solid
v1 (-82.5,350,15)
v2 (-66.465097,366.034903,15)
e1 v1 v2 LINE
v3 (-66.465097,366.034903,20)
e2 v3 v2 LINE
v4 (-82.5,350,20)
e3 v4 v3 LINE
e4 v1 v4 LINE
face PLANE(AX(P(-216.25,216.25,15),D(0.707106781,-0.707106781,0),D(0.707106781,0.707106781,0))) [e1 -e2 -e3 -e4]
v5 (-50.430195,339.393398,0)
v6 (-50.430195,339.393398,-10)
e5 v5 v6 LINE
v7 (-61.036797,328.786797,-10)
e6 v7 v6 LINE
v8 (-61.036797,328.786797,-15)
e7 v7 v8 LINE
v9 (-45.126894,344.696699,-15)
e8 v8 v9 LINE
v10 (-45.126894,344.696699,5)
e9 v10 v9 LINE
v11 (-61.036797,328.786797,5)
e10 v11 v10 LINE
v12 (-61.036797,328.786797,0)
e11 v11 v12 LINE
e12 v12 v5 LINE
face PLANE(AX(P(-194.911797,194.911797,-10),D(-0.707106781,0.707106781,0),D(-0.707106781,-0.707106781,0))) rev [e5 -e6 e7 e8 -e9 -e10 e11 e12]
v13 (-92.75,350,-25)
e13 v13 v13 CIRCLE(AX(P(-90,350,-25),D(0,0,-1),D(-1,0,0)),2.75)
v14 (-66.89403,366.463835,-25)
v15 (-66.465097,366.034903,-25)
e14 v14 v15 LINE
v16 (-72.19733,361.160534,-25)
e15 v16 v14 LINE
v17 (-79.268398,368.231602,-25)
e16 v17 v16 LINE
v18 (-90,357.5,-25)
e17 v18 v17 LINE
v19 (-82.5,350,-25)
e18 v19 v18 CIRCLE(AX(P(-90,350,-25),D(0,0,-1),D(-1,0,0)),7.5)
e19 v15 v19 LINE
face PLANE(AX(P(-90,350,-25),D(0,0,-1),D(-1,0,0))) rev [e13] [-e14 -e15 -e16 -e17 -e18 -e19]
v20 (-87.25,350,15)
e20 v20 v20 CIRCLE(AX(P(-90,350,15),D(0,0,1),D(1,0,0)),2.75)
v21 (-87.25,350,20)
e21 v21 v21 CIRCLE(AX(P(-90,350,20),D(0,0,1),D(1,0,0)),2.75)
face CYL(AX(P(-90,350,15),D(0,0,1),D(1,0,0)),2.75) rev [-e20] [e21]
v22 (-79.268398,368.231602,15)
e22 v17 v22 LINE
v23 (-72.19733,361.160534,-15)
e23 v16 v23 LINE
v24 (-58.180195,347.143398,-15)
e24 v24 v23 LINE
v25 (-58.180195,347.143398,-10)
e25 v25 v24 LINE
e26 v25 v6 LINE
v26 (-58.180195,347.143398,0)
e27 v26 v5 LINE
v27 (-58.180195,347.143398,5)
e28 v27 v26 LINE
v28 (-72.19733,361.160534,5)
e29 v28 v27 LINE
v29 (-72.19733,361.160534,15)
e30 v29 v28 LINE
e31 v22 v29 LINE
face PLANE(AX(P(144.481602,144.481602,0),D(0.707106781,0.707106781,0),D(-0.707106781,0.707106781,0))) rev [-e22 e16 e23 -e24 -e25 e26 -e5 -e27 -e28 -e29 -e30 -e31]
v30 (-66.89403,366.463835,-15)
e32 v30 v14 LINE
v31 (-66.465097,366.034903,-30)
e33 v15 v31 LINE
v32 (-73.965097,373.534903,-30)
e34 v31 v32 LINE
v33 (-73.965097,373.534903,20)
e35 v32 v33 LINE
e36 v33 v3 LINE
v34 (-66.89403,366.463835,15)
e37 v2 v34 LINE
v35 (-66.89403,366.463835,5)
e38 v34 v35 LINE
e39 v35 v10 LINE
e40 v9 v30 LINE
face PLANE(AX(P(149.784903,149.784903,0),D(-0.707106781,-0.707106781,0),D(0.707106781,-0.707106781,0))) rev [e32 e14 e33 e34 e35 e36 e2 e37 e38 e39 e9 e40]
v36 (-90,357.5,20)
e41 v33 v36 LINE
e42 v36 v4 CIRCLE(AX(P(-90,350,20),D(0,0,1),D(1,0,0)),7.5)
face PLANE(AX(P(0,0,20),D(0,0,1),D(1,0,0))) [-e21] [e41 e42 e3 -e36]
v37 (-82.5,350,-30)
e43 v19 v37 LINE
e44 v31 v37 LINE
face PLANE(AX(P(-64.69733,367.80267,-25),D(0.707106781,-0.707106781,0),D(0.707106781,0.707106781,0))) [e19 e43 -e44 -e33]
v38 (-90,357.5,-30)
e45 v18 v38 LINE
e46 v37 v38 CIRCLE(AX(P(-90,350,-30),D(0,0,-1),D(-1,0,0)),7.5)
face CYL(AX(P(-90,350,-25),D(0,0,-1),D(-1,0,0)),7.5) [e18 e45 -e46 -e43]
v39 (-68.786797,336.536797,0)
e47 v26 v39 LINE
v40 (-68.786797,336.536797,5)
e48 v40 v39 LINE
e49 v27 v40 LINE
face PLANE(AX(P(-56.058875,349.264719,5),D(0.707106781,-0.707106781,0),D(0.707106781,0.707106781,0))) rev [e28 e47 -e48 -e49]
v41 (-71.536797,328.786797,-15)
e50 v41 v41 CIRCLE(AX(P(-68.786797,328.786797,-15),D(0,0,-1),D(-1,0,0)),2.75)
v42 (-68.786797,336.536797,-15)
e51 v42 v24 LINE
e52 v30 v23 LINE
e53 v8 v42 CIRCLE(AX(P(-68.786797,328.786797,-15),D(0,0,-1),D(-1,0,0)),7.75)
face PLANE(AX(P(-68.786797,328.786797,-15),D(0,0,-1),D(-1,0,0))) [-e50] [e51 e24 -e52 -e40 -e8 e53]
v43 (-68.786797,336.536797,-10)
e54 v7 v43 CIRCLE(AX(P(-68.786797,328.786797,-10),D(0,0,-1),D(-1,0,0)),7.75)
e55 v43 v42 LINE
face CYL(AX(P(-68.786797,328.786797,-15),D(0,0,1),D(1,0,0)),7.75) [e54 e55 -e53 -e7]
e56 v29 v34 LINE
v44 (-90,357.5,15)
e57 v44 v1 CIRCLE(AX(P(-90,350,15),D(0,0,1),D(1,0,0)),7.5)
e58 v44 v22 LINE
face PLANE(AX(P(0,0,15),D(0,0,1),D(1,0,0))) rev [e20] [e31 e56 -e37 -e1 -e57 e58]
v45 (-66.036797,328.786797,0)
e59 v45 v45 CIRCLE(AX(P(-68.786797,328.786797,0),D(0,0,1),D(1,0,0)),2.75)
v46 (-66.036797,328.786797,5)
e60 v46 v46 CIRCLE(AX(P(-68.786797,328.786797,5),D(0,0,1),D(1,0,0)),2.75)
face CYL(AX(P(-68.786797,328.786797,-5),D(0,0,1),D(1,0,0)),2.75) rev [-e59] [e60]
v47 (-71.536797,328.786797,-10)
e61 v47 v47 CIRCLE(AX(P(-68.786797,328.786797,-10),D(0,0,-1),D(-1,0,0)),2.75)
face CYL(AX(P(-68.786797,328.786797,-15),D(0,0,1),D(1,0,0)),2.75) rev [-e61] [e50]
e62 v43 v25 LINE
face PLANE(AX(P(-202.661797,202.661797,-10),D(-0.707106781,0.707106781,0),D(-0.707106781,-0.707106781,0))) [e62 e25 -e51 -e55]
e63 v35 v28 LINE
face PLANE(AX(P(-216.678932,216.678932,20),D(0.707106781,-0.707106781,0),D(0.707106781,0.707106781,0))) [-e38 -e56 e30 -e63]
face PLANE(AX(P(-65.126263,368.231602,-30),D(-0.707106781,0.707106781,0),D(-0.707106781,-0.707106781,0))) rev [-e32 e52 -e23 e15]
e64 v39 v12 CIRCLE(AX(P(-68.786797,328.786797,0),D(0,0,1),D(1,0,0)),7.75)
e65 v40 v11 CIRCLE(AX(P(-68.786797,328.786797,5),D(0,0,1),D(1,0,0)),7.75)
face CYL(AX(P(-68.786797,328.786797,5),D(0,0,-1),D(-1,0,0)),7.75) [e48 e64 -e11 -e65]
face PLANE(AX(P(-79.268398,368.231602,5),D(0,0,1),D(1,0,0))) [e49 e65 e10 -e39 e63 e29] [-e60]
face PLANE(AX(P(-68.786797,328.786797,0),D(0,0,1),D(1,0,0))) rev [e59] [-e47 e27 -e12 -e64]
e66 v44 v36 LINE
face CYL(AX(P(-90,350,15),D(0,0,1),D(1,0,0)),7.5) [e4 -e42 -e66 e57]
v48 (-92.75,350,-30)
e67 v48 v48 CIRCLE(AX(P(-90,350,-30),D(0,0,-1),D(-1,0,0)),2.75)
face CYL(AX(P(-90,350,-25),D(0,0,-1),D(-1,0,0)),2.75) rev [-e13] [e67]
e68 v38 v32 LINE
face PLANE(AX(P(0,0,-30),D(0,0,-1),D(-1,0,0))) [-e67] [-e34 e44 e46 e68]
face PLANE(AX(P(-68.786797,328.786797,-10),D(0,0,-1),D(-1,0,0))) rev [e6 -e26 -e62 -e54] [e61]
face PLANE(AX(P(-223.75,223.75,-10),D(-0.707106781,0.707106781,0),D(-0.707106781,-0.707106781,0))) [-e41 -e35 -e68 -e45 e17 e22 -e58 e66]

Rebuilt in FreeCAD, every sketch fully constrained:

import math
import FreeCAD as App
import Part
import Sketcher
from FreeCAD import Vector
Q = App.Units.Quantity


def add_polygon(sketch, points):
    """Adds a closed chain of lines whose ends are joined by coincident constraints."""
    first, n = sketch.GeometryCount, len(points)
    for a, b in zip(points, points[1:] + points[:1]):
        sketch.addGeometry(Part.LineSegment(App.Vector(*a, 0), App.Vector(*b, 0)), False)
    for i in range(n):
        sketch.addConstraint(Sketcher.Constraint("Coincident", first + i, 2, first + (i + 1) % n, 1))

doc = App.newDocument("Part")
body = doc.addObject("PartDesign::Body", "Body")

# Sketch on XY plane
sketch1 = body.newObject("Sketcher::SketchObject", "Sketch")
sketch1.AttachmentSupport = (doc.getObject("XY_Plane"), [""])
sketch1.MapMode = "FlatFace"
sketch1.addGeometry(Part.Circle(Vector(-68.8, 328.8, 0), Vector(0, 0, 1), 7.8), False)
sketch1.addGeometry(Part.Circle(Vector(-68.8, 328.8, 0), Vector(0, 0, 1), 2.8), False)
sketch1.addConstraint(Sketcher.Constraint("Coincident", 1, 3, 0, 3))
sketch1.addConstraint(Sketcher.Constraint("Diameter", 0, Q("15.5 mm")))
sketch1.addConstraint(Sketcher.Constraint("Diameter", 1, Q("5.5 mm")))
sketch1.addConstraint(Sketcher.Constraint("DistanceX", 0, 3, -1, 1, Q("68.786797 mm")))
sketch1.addConstraint(Sketcher.Constraint("DistanceY", -1, 1, 0, 3, Q("328.786797 mm")))
pad1 = body.newObject("PartDesign::Pad", "Pad")
pad1.Profile = sketch1
pad1.Length = 5

# Sketch on XY plane
sketch2 = body.newObject("Sketcher::SketchObject", "Sketch001")
sketch2.AttachmentSupport = (doc.getObject("XY_Plane"), [""])
sketch2.MapMode = "FlatFace"
sketch2.addGeometry(Part.LineSegment(Vector(-61, 329, 0), Vector(-43, 346, 0)), False)
sketch2.addGeometry(Part.LineSegment(Vector(-43, 346, 0), Vector(-72, 375, 0)), False)
sketch2.addGeometry(Part.LineSegment(Vector(-72, 375, 0), Vector(-90, 358, 0)), False)
sketch2.addGeometry(Part.ArcOfCircle(Part.Circle(Vector(-90, 350, 0), Vector(0, 0, 1), 8), math.radians(90), math.radians(360)), False)
sketch2.addGeometry(Part.LineSegment(Vector(-82, 350, 0), Vector(-70, 363, 0)), False)
sketch2.addGeometry(Part.LineSegment(Vector(-70, 363, 0), Vector(-56, 349, 0)), False)
sketch2.addGeometry(Part.LineSegment(Vector(-56, 349, 0), Vector(-69, 337, 0)), False)
sketch2.addGeometry(Part.ArcOfCircle(Part.Circle(Vector(-69, 329, 0), Vector(0, 0, 1), 8), math.radians(90), math.radians(360)), False)
sketch2.addConstraint(Sketcher.Constraint("Coincident", 0, 2, 1, 1))
sketch2.addConstraint(Sketcher.Constraint("Coincident", 1, 2, 2, 1))
sketch2.addConstraint(Sketcher.Constraint("Coincident", 2, 2, 3, 1))
sketch2.addConstraint(Sketcher.Constraint("Coincident", 3, 2, 4, 1))
sketch2.addConstraint(Sketcher.Constraint("Coincident", 4, 2, 5, 1))
sketch2.addConstraint(Sketcher.Constraint("Coincident", 5, 2, 6, 1))
sketch2.addConstraint(Sketcher.Constraint("Coincident", 6, 2, 7, 1))
sketch2.addConstraint(Sketcher.Constraint("Coincident", 7, 2, 0, 1))
sketch2.addConstraint(Sketcher.Constraint("Perpendicular", 0, 1))
sketch2.addConstraint(Sketcher.Constraint("Perpendicular", 1, 2))
sketch2.addConstraint(Sketcher.Constraint("Parallel", 2, 4))
sketch2.addConstraint(Sketcher.Constraint("Perpendicular", 4, 5))
sketch2.addConstraint(Sketcher.Constraint("Perpendicular", 5, 6))
sketch2.addConstraint(Sketcher.Constraint("Vertical", 3, 3, 2, 2))
sketch2.addConstraint(Sketcher.Constraint("Vertical", 7, 3, 6, 2))
sketch2.addConstraint(Sketcher.Constraint("Radius", 3, Q("7.5 mm")))
sketch2.addConstraint(Sketcher.Constraint("Angle", 0, Q("45 deg")))
sketch2.addConstraint(Sketcher.Constraint("Radius", 7, Q("7.75 mm")))
sketch2.addConstraint(Sketcher.Constraint("Distance", 0, Q("25 mm")))
sketch2.addConstraint(Sketcher.Constraint("Distance", 6, Q("18 mm")))
sketch2.addConstraint(Sketcher.Constraint("DistanceX", 3, 3, -1, 1, Q("90 mm")))
sketch2.addConstraint(Sketcher.Constraint("DistanceY", -1, 1, 3, 3, Q("350 mm")))
sketch2.addConstraint(Sketcher.Constraint("DistanceY", -1, 1, 3, 2, Q("350 mm")))
sketch2.addConstraint(Sketcher.Constraint("DistanceY", 7, 2, 6, 2, Q("7.75 mm")))
sketch2.addConstraint(Sketcher.Constraint("Distance", 1, Q("40.783378 mm")))
sketch2.addConstraint(Sketcher.Constraint("DistanceX", 1, 2, -1, 1, Q("72.19733 mm")))
pad2 = body.newObject("PartDesign::Pad", "Pad001")
pad2.Profile = sketch2
pad2.Length = 5
body2 = doc.addObject("PartDesign::Body", "Body001")

# Sketch on XY plane
sketch3 = body2.newObject("Sketcher::SketchObject", "Sketch002")
sketch3.AttachmentSupport = (doc.getObject("XY_Plane001"), [""])
sketch3.MapMode = "FlatFace"
sketch3.AttachmentOffset = App.Placement(Vector(0, 0, -10), App.Rotation())
sketch3.addGeometry(Part.Circle(Vector(-68.8, 328.8, 0), Vector(0, 0, 1), 7.8), False)
sketch3.addGeometry(Part.Circle(Vector(-68.8, 328.8, 0), Vector(0, 0, 1), 2.8), False)
sketch3.addConstraint(Sketcher.Constraint("Coincident", 1, 3, 0, 3))
sketch3.addConstraint(Sketcher.Constraint("Diameter", 0, Q("15.5 mm")))
sketch3.addConstraint(Sketcher.Constraint("Diameter", 1, Q("5.5 mm")))
sketch3.addConstraint(Sketcher.Constraint("DistanceX", 0, 3, -1, 1, Q("68.786797 mm")))
sketch3.addConstraint(Sketcher.Constraint("DistanceY", -1, 1, 0, 3, Q("328.786797 mm")))
pad3 = body2.newObject("PartDesign::Pad", "Pad002")
pad3.Profile = sketch3
pad3.Length = 5
pad3.Reversed = True

# Sketch on XY plane
sketch4 = body2.newObject("Sketcher::SketchObject", "Sketch003")
sketch4.AttachmentSupport = (doc.getObject("XY_Plane001"), [""])
sketch4.MapMode = "FlatFace"
sketch4.AttachmentOffset = App.Placement(Vector(0, 0, -15), App.Rotation())
sketch4.addGeometry(Part.LineSegment(Vector(-90, 357.5, 0), Vector(-72.2, 375.3, 0)), False)
sketch4.addGeometry(Part.LineSegment(Vector(-72.2, 375.3, 0), Vector(-43.4, 346.5, 0)), False)
sketch4.addGeometry(Part.LineSegment(Vector(-43.4, 346.5, 0), Vector(-61, 328.8, 0)), False)
sketch4.addGeometry(Part.ArcOfCircle(Part.Circle(Vector(-68.8, 328.8, 0), Vector(0, 0, 1), 7.7), math.radians(0), math.radians(90)), False)
sketch4.addGeometry(Part.LineSegment(Vector(-68.8, 336.5, 0), Vector(-56.1, 349.3, 0)), False)
sketch4.addGeometry(Part.LineSegment(Vector(-56.1, 349.3, 0), Vector(-69.6, 362.9, 0)), False)
sketch4.addGeometry(Part.LineSegment(Vector(-69.6, 362.9, 0), Vector(-82.5, 350, 0)), False)
sketch4.addGeometry(Part.ArcOfCircle(Part.Circle(Vector(-90, 350, 0), Vector(0, 0, 1), 7.5), math.radians(90), math.radians(360)), False)
sketch4.addGeometry(Part.Circle(Vector(-90, 350, 0), Vector(0, 0, 1), 2.8), False)
sketch4.addConstraint(Sketcher.Constraint("Coincident", 0, 2, 1, 1))
sketch4.addConstraint(Sketcher.Constraint("Coincident", 1, 2, 2, 1))
sketch4.addConstraint(Sketcher.Constraint("Coincident", 2, 2, 3, 1))
sketch4.addConstraint(Sketcher.Constraint("Coincident", 3, 2, 4, 1))
sketch4.addConstraint(Sketcher.Constraint("Coincident", 4, 2, 5, 1))
sketch4.addConstraint(Sketcher.Constraint("Coincident", 5, 2, 6, 1))
sketch4.addConstraint(Sketcher.Constraint("Coincident", 6, 2, 7, 2))
sketch4.addConstraint(Sketcher.Constraint("Coincident", 7, 1, 0, 1))
sketch4.addConstraint(Sketcher.Constraint("Coincident", 8, 3, 7, 3))
sketch4.addConstraint(Sketcher.Constraint("Perpendicular", 0, 1))
sketch4.addConstraint(Sketcher.Constraint("Perpendicular", 1, 2))
sketch4.addConstraint(Sketcher.Constraint("Parallel", 2, 4))
sketch4.addConstraint(Sketcher.Constraint("Perpendicular", 4, 5))
sketch4.addConstraint(Sketcher.Constraint("Perpendicular", 5, 6))
sketch4.addConstraint(Sketcher.Constraint("Horizontal", 3, 3, 2, 2))
sketch4.addConstraint(Sketcher.Constraint("Horizontal", 8, 3, 6, 2))
sketch4.addConstraint(Sketcher.Constraint("Vertical", 8, 3, 7, 1))
sketch4.addConstraint(Sketcher.Constraint("Diameter", 8, Q("5.5 mm")))
sketch4.addConstraint(Sketcher.Constraint("Radius", 7, Q("7.5 mm")))
sketch4.addConstraint(Sketcher.Constraint("Angle", 0, Q("45 deg")))
sketch4.addConstraint(Sketcher.Constraint("Radius", 3, Q("7.75 mm")))
sketch4.addConstraint(Sketcher.Constraint("Distance", 2, Q("25 mm")))
sketch4.addConstraint(Sketcher.Constraint("Distance", 4, Q("18 mm")))
sketch4.addConstraint(Sketcher.Constraint("DistanceX", 7, 3, -1, 1, Q("90 mm")))
sketch4.addConstraint(Sketcher.Constraint("DistanceY", -1, 1, 7, 3, Q("350 mm")))
sketch4.addConstraint(Sketcher.Constraint("DistanceX", 3, 2, 2, 2, Q("7.75 mm")))
sketch4.addConstraint(Sketcher.Constraint("Distance", 1, Q("40.783378 mm")))
sketch4.addConstraint(Sketcher.Constraint("DistanceX", 0, 2, -1, 1, Q("72.19733 mm")))
pad4 = body2.newObject("PartDesign::Pad", "Pad003")
pad4.Profile = sketch4
pad4.Length = 5
body.AllowCompound = True
doc.recompute()

boolean = body.newObject("PartDesign::Boolean", "Boolean")
boolean.Type = "Fuse"
boolean.addObjects([body2])

# Sketch on an angled plane
sketch5 = body.newObject("Sketcher::SketchObject", "Sketch004")
sketch5.Placement = App.Placement(Vector(151.55267, 151.55267, 0), App.Rotation(Vector(0, 0, -1), Vector(-0.707106781, 0.707106781, 0), Vector(0.707106781, 0.707106781, 0), "ZXY"))
add_polygon(sketch5, [(-5, 316), (-5, 276), (15, 276), (15, 316)])  # lines 0-3
sketch5.addConstraint(Sketcher.Constraint("Vertical", 0))
sketch5.addConstraint(Sketcher.Constraint("Horizontal", 1))
sketch5.addConstraint(Sketcher.Constraint("Vertical", 2))
sketch5.addConstraint(Sketcher.Constraint("Horizontal", 3))
sketch5.addConstraint(Sketcher.Constraint("DistanceX", 1, 1, 1, 2, Q("20 mm")))
sketch5.addConstraint(Sketcher.Constraint("DistanceX", 0, 2, -1, 1, Q("5 mm")))
sketch5.addConstraint(Sketcher.Constraint("DistanceY", 0, 2, 0, 1, Q("40.783378 mm")))
sketch5.addConstraint(Sketcher.Constraint("DistanceY", -1, 1, 0, 2, Q("275.646906 mm")))
pad5 = body.newObject("PartDesign::Pad", "Pad004")
pad5.Profile = sketch5
pad5.Length = 10
pad5.Reversed = True

# Sketch on XY plane
sketch6 = body.newObject("Sketcher::SketchObject", "Sketch005")
sketch6.AttachmentSupport = (doc.getObject("XY_Plane"), [""])
sketch6.MapMode = "FlatFace"
sketch6.AttachmentOffset = App.Placement(Vector(0, 0, 5), App.Rotation())
sketch6.addGeometry(Part.Circle(Vector(-68.8, 328.8, 0), Vector(0, 0, 1), 2.8), False)
sketch6.addGeometry(Part.Circle(Vector(-90, 350, 0), Vector(0, 0, 1), 2.8), False)
sketch6.addConstraint(Sketcher.Constraint("Equal", 0, 1))
sketch6.addConstraint(Sketcher.Constraint("Diameter", 0, Q("5.5 mm")))
sketch6.addConstraint(Sketcher.Constraint("DistanceX", 1, 3, -1, 1, Q("90 mm")))
sketch6.addConstraint(Sketcher.Constraint("DistanceY", -1, 1, 1, 3, Q("350 mm")))
sketch6.addConstraint(Sketcher.Constraint("DistanceX", 0, 3, -1, 1, Q("68.786797 mm")))
sketch6.addConstraint(Sketcher.Constraint("DistanceY", -1, 1, 0, 3, Q("328.786797 mm")))
pocket1 = body.newObject("PartDesign::Pocket", "Pocket")
pocket1.Profile = sketch6
pocket1.Length = 10

# Sketch on XY plane
sketch7 = body.newObject("Sketcher::SketchObject", "Sketch006")
sketch7.AttachmentSupport = (doc.getObject("XY_Plane"), [""])
sketch7.MapMode = "FlatFace"
sketch7.AttachmentOffset = App.Placement(Vector(0, 0, 5), App.Rotation())
sketch7.addGeometry(Part.LineSegment(Vector(-82.5, 350, 0), Vector(-71.8, 360.7, 0)), False)
sketch7.addGeometry(Part.LineSegment(Vector(-71.8, 360.7, 0), Vector(-79.3, 368.2, 0)), False)
sketch7.addGeometry(Part.LineSegment(Vector(-79.3, 368.2, 0), Vector(-90, 357.5, 0)), False)
sketch7.addGeometry(Part.ArcOfCircle(Part.Circle(Vector(-90, 350, 0), Vector(0, 0, 1), 7.5), math.radians(90), math.radians(360)), False)
sketch7.addGeometry(Part.Circle(Vector(-90, 350, 0), Vector(0, 0, 1), 2.8), False)
sketch7.addConstraint(Sketcher.Constraint("Coincident", 0, 2, 1, 1))
sketch7.addConstraint(Sketcher.Constraint("Coincident", 1, 2, 2, 1))
sketch7.addConstraint(Sketcher.Constraint("Coincident", 2, 2, 3, 1))
sketch7.addConstraint(Sketcher.Constraint("Coincident", 3, 2, 0, 1))
sketch7.addConstraint(Sketcher.Constraint("Coincident", 4, 3, 3, 3))
sketch7.addConstraint(Sketcher.Constraint("Perpendicular", 0, 1))
sketch7.addConstraint(Sketcher.Constraint("Perpendicular", 1, 2))
sketch7.addConstraint(Sketcher.Constraint("Horizontal", 4, 3, 3, 2))
sketch7.addConstraint(Sketcher.Constraint("Vertical", 4, 3, 2, 2))
sketch7.addConstraint(Sketcher.Constraint("Equal", 0, 2))
sketch7.addConstraint(Sketcher.Constraint("Diameter", 4, Q("5.5 mm")))
sketch7.addConstraint(Sketcher.Constraint("Radius", 3, Q("7.5 mm")))
sketch7.addConstraint(Sketcher.Constraint("DistanceX", 3, 3, -1, 1, Q("90 mm")))
sketch7.addConstraint(Sketcher.Constraint("DistanceY", -1, 1, 3, 3, Q("350 mm")))
sketch7.addConstraint(Sketcher.Constraint("DistanceX", 0, 2, -1, 1, Q("71.768398 mm")))
pocket2 = body.newObject("PartDesign::Pocket", "Pocket001")
pocket2.Profile = sketch7
pocket2.Type = "ThroughAll"

# Sketch on XY plane
sketch8 = body.newObject("Sketcher::SketchObject", "Sketch007")
sketch8.AttachmentSupport = (doc.getObject("XY_Plane"), [""])
sketch8.MapMode = "FlatFace"
sketch8.AttachmentOffset = App.Placement(Vector(0, 0, 5), App.Rotation())
add_polygon(sketch8, [(-72, 361), (-65, 368), (-72, 375), (-79, 368)])  # lines 0-3
sketch8.addConstraint(Sketcher.Constraint("Perpendicular", 0, 1))
sketch8.addConstraint(Sketcher.Constraint("Perpendicular", 1, 2))
sketch8.addConstraint(Sketcher.Constraint("Perpendicular", 2, 3))
sketch8.addConstraint(Sketcher.Constraint("Horizontal", 0, 2, 2, 2))
sketch8.addConstraint(Sketcher.Constraint("Vertical", 1, 2, 3, 2))
sketch8.addConstraint(Sketcher.Constraint("Distance", 0, Q("10 mm")))
sketch8.addConstraint(Sketcher.Constraint("DistanceY", -1, 1, 0, 2, Q("368.231602 mm")))
sketch8.addConstraint(Sketcher.Constraint("DistanceX", 2, 2, -1, 1, Q("79.268398 mm")))
pad6 = body.newObject("PartDesign::Pad", "Pad005")
pad6.Profile = sketch8
pad6.Length = 15

# Sketch on XY plane
sketch9 = body.newObject("Sketcher::SketchObject", "Sketch008")
sketch9.AttachmentSupport = (doc.getObject("XY_Plane"), [""])
sketch9.MapMode = "FlatFace"
sketch9.AttachmentOffset = App.Placement(Vector(0, 0, -15), App.Rotation())
add_polygon(sketch9, [(-65, 368), (-72, 361), (-79, 368), (-72, 375)])  # lines 0-3
sketch9.addConstraint(Sketcher.Constraint("Perpendicular", 0, 1))
sketch9.addConstraint(Sketcher.Constraint("Perpendicular", 1, 2))
sketch9.addConstraint(Sketcher.Constraint("Perpendicular", 2, 3))
sketch9.addConstraint(Sketcher.Constraint("Horizontal", 1, 2, 3, 2))
sketch9.addConstraint(Sketcher.Constraint("Vertical", 0, 2, 2, 2))
sketch9.addConstraint(Sketcher.Constraint("Distance", 0, Q("10 mm")))
sketch9.addConstraint(Sketcher.Constraint("DistanceX", 1, 2, -1, 1, Q("79.268398 mm")))
sketch9.addConstraint(Sketcher.Constraint("DistanceY", -1, 1, 1, 2, Q("368.231602 mm")))
pad7 = body.newObject("PartDesign::Pad", "Pad006")
pad7.Profile = sketch9
pad7.Length = 15
pad7.Reversed = True

# Sketch on XY plane
sketch10 = body.newObject("Sketcher::SketchObject", "Sketch009")
sketch10.AttachmentSupport = (doc.getObject("XY_Plane"), [""])
sketch10.MapMode = "FlatFace"
sketch10.AttachmentOffset = App.Placement(Vector(0, 0, 20), App.Rotation())
sketch10.addGeometry(Part.LineSegment(Vector(-82.5, 350, 0), Vector(-64.7, 367.8, 0)), False)
sketch10.addGeometry(Part.LineSegment(Vector(-64.7, 367.8, 0), Vector(-65.1, 368.2, 0)), False)
sketch10.addGeometry(Part.LineSegment(Vector(-65.1, 368.2, 0), Vector(-72.2, 361.2, 0)), False)
sketch10.addGeometry(Part.LineSegment(Vector(-72.2, 361.2, 0), Vector(-79.3, 368.2, 0)), False)
sketch10.addGeometry(Part.LineSegment(Vector(-79.3, 368.2, 0), Vector(-90, 357.5, 0)), False)
sketch10.addGeometry(Part.ArcOfCircle(Part.Circle(Vector(-90, 350, 0), Vector(0, 0, 1), 7.5), math.radians(90), math.radians(360)), False)
sketch10.addGeometry(Part.Circle(Vector(-90, 350, 0), Vector(0, 0, 1), 2.8), False)
sketch10.addConstraint(Sketcher.Constraint("Coincident", 0, 2, 1, 1))
sketch10.addConstraint(Sketcher.Constraint("Coincident", 1, 2, 2, 1))
sketch10.addConstraint(Sketcher.Constraint("Coincident", 2, 2, 3, 1))
sketch10.addConstraint(Sketcher.Constraint("Coincident", 3, 2, 4, 1))
sketch10.addConstraint(Sketcher.Constraint("Coincident", 4, 2, 5, 1))
sketch10.addConstraint(Sketcher.Constraint("Coincident", 5, 2, 0, 1))
sketch10.addConstraint(Sketcher.Constraint("Coincident", 6, 3, 5, 3))
sketch10.addConstraint(Sketcher.Constraint("Perpendicular", 0, 1))
sketch10.addConstraint(Sketcher.Constraint("Perpendicular", 1, 2))
sketch10.addConstraint(Sketcher.Constraint("Perpendicular", 2, 3))
sketch10.addConstraint(Sketcher.Constraint("Perpendicular", 3, 4))
sketch10.addConstraint(Sketcher.Constraint("Horizontal", 1, 2, 3, 2))
sketch10.addConstraint(Sketcher.Constraint("Horizontal", 6, 3, 5, 2))
sketch10.addConstraint(Sketcher.Constraint("Vertical", 6, 3, 4, 2))
sketch10.addConstraint(Sketcher.Constraint("Equal", 2, 3))
sketch10.addConstraint(Sketcher.Constraint("Diameter", 6, Q("5.5 mm")))
sketch10.addConstraint(Sketcher.Constraint("Radius", 5, Q("7.5 mm")))
sketch10.addConstraint(Sketcher.Constraint("Distance", 2, Q("10 mm")))
sketch10.addConstraint(Sketcher.Constraint("DistanceX", 5, 3, -1, 1, Q("90 mm")))
sketch10.addConstraint(Sketcher.Constraint("DistanceY", -1, 1, 5, 3, Q("350 mm")))
sketch10.addConstraint(Sketcher.Constraint("DistanceY", -1, 1, 1, 2, Q("368.231602 mm")))
pad8 = body.newObject("PartDesign::Pad", "Pad007")
pad8.Profile = sketch10
pad8.Length = 5
pad8.Reversed = True

# Sketch on XY plane
sketch11 = body.newObject("Sketcher::SketchObject", "Sketch010")
sketch11.AttachmentSupport = (doc.getObject("XY_Plane"), [""])
sketch11.MapMode = "FlatFace"
sketch11.AttachmentOffset = App.Placement(Vector(0, 0, -25), App.Rotation())
sketch11.addGeometry(Part.LineSegment(Vector(-90, 357.5, 0), Vector(-79.3, 368.2, 0)), False)
sketch11.addGeometry(Part.LineSegment(Vector(-79.3, 368.2, 0), Vector(-72.2, 361.2, 0)), False)
sketch11.addGeometry(Part.LineSegment(Vector(-72.2, 361.2, 0), Vector(-65.1, 368.2, 0)), False)
sketch11.addGeometry(Part.LineSegment(Vector(-65.1, 368.2, 0), Vector(-64.7, 367.8, 0)), False)
sketch11.addGeometry(Part.LineSegment(Vector(-64.7, 367.8, 0), Vector(-82.5, 350, 0)), False)
sketch11.addGeometry(Part.ArcOfCircle(Part.Circle(Vector(-90, 350, 0), Vector(0, 0, 1), 7.5), math.radians(90), math.radians(360)), False)
sketch11.addGeometry(Part.Circle(Vector(-90, 350, 0), Vector(0, 0, 1), 2.8), False)
sketch11.addConstraint(Sketcher.Constraint("Coincident", 0, 2, 1, 1))
sketch11.addConstraint(Sketcher.Constraint("Coincident", 1, 2, 2, 1))
sketch11.addConstraint(Sketcher.Constraint("Coincident", 2, 2, 3, 1))
sketch11.addConstraint(Sketcher.Constraint("Coincident", 3, 2, 4, 1))
sketch11.addConstraint(Sketcher.Constraint("Coincident", 4, 2, 5, 2))
sketch11.addConstraint(Sketcher.Constraint("Coincident", 5, 1, 0, 1))
sketch11.addConstraint(Sketcher.Constraint("Coincident", 6, 3, 5, 3))
sketch11.addConstraint(Sketcher.Constraint("Perpendicular", 0, 1))
sketch11.addConstraint(Sketcher.Constraint("Perpendicular", 1, 2))
sketch11.addConstraint(Sketcher.Constraint("Perpendicular", 2, 3))
sketch11.addConstraint(Sketcher.Constraint("Perpendicular", 3, 4))
sketch11.addConstraint(Sketcher.Constraint("Horizontal", 0, 2, 2, 2))
sketch11.addConstraint(Sketcher.Constraint("Horizontal", 6, 3, 4, 2))
sketch11.addConstraint(Sketcher.Constraint("Vertical", 6, 3, 5, 1))
sketch11.addConstraint(Sketcher.Constraint("Equal", 1, 2))
sketch11.addConstraint(Sketcher.Constraint("Diameter", 6, Q("5.5 mm")))
sketch11.addConstraint(Sketcher.Constraint("Radius", 5, Q("7.5 mm")))
sketch11.addConstraint(Sketcher.Constraint("Distance", 1, Q("10 mm")))
sketch11.addConstraint(Sketcher.Constraint("DistanceX", 5, 3, -1, 1, Q("90 mm")))
sketch11.addConstraint(Sketcher.Constraint("DistanceY", -1, 1, 5, 3, Q("350 mm")))
sketch11.addConstraint(Sketcher.Constraint("DistanceX", 0, 2, -1, 1, Q("79.268398 mm")))
pad9 = body.newObject("PartDesign::Pad", "Pad008")
pad9.Profile = sketch11
pad9.Length = 5
pad9.Reversed = True

# Sketch on an angled plane
sketch12 = body.newObject("Sketcher::SketchObject", "Sketch011")
sketch12.Placement = App.Placement(Vector(151.55267, 151.55267, 0), App.Rotation(Vector(0, 0, -1), Vector(-0.707106781, 0.707106781, 0), Vector(0.707106781, 0.707106781, 0), "ZXY"))
add_polygon(sketch12, [(-5, 275.6), (15, 275.6), (15, 306.4), (25, 306.4), (25, 305.8), (30, 305.8), (30, 316.4), (-20, 316.4), (-20, 305.8), (-15, 305.8), (-15, 306.4), (-5, 306.4)])  # lines 0-11
sketch12.addConstraint(Sketcher.Constraint("Horizontal", 0))
sketch12.addConstraint(Sketcher.Constraint("Vertical", 1))
sketch12.addConstraint(Sketcher.Constraint("Horizontal", 2))
sketch12.addConstraint(Sketcher.Constraint("Vertical", 3))
sketch12.addConstraint(Sketcher.Constraint("Horizontal", 4))
sketch12.addConstraint(Sketcher.Constraint("Vertical", 5))
sketch12.addConstraint(Sketcher.Constraint("Horizontal", 6))
sketch12.addConstraint(Sketcher.Constraint("Vertical", 7))
sketch12.addConstraint(Sketcher.Constraint("Horizontal", 8))
sketch12.addConstraint(Sketcher.Constraint("Vertical", 9))
sketch12.addConstraint(Sketcher.Constraint("Horizontal", 10))
sketch12.addConstraint(Sketcher.Constraint("Vertical", 11))
sketch12.addConstraint(Sketcher.Constraint("Symmetric", 1, 2, 9, 2, -2))
sketch12.addConstraint(Sketcher.Constraint("Horizontal", 4, 2, 7, 2))
sketch12.addConstraint(Sketcher.Constraint("Equal", 4, 8))
sketch12.addConstraint(Sketcher.Constraint("Equal", 2, 10))
sketch12.addConstraint(Sketcher.Constraint("DistanceX", 0, 1, 0, 2, Q("20 mm")))
sketch12.addConstraint(Sketcher.Constraint("DistanceX", 2, 1, 2, 2, Q("10 mm")))
sketch12.addConstraint(Sketcher.Constraint("DistanceX", 4, 1, 4, 2, Q("5 mm")))
sketch12.addConstraint(Sketcher.Constraint("DistanceY", 2, 2, 5, 2, Q("10 mm")))
sketch12.addConstraint(Sketcher.Constraint("DistanceY", 3, 2, 3, 1, Q("0.606602 mm")))
sketch12.addConstraint(Sketcher.Constraint("DistanceY", 1, 1, 1, 2, Q("30.783378 mm")))
sketch12.addConstraint(Sketcher.Constraint("DistanceY", -1, 1, 0, 2, Q("275.646906 mm")))
pocket3 = body.newObject("PartDesign::Pocket", "Pocket002")
pocket3.Profile = sketch12
pocket3.Length = 5

# Sketch on an angled plane
sketch13 = body.newObject("Sketcher::SketchObject", "Sketch012")
sketch13.Placement = App.Placement(Vector(148.017136, 148.017136, 0), App.Rotation(Vector(0, 0, -1), Vector(-0.707106781, 0.707106781, 0), Vector(0.707106781, 0.707106781, 0), "ZXY"))
add_polygon(sketch13, [(-5, 306.4), (-5, 275.6), (15, 275.6), (15, 306.4), (25, 306.4), (25, 305.8), (30, 305.8), (30, 316.4), (-20, 316.4), (-20, 305.8), (-15, 305.8), (-15, 306.4)])  # lines 0-11
sketch13.addConstraint(Sketcher.Constraint("Vertical", 0))
sketch13.addConstraint(Sketcher.Constraint("Horizontal", 1))
sketch13.addConstraint(Sketcher.Constraint("Vertical", 2))
sketch13.addConstraint(Sketcher.Constraint("Horizontal", 3))
sketch13.addConstraint(Sketcher.Constraint("Vertical", 4))
sketch13.addConstraint(Sketcher.Constraint("Horizontal", 5))
sketch13.addConstraint(Sketcher.Constraint("Vertical", 6))
sketch13.addConstraint(Sketcher.Constraint("Horizontal", 7))
sketch13.addConstraint(Sketcher.Constraint("Vertical", 8))
sketch13.addConstraint(Sketcher.Constraint("Horizontal", 9))
sketch13.addConstraint(Sketcher.Constraint("Vertical", 10))
sketch13.addConstraint(Sketcher.Constraint("Horizontal", 11))
sketch13.addConstraint(Sketcher.Constraint("Symmetric", 2, 2, 10, 2, -2))
sketch13.addConstraint(Sketcher.Constraint("Horizontal", 5, 2, 8, 2))
sketch13.addConstraint(Sketcher.Constraint("Equal", 5, 9))
sketch13.addConstraint(Sketcher.Constraint("Equal", 3, 11))
sketch13.addConstraint(Sketcher.Constraint("DistanceX", 1, 1, 1, 2, Q("20 mm")))
sketch13.addConstraint(Sketcher.Constraint("DistanceX", 3, 1, 3, 2, Q("10 mm")))
sketch13.addConstraint(Sketcher.Constraint("DistanceX", 5, 1, 5, 2, Q("5 mm")))
sketch13.addConstraint(Sketcher.Constraint("DistanceY", 3, 2, 6, 2, Q("10 mm")))
sketch13.addConstraint(Sketcher.Constraint("DistanceY", 4, 2, 4, 1, Q("0.606602 mm")))
sketch13.addConstraint(Sketcher.Constraint("DistanceY", 0, 2, 0, 1, Q("30.783378 mm")))
sketch13.addConstraint(Sketcher.Constraint("DistanceY", -1, 1, 0, 2, Q("275.646906 mm")))
pad10 = body.newObject("PartDesign::Pad", "Pad009")
pad10.Profile = sketch13
pad10.Length = 2.5

doc.recompute()
